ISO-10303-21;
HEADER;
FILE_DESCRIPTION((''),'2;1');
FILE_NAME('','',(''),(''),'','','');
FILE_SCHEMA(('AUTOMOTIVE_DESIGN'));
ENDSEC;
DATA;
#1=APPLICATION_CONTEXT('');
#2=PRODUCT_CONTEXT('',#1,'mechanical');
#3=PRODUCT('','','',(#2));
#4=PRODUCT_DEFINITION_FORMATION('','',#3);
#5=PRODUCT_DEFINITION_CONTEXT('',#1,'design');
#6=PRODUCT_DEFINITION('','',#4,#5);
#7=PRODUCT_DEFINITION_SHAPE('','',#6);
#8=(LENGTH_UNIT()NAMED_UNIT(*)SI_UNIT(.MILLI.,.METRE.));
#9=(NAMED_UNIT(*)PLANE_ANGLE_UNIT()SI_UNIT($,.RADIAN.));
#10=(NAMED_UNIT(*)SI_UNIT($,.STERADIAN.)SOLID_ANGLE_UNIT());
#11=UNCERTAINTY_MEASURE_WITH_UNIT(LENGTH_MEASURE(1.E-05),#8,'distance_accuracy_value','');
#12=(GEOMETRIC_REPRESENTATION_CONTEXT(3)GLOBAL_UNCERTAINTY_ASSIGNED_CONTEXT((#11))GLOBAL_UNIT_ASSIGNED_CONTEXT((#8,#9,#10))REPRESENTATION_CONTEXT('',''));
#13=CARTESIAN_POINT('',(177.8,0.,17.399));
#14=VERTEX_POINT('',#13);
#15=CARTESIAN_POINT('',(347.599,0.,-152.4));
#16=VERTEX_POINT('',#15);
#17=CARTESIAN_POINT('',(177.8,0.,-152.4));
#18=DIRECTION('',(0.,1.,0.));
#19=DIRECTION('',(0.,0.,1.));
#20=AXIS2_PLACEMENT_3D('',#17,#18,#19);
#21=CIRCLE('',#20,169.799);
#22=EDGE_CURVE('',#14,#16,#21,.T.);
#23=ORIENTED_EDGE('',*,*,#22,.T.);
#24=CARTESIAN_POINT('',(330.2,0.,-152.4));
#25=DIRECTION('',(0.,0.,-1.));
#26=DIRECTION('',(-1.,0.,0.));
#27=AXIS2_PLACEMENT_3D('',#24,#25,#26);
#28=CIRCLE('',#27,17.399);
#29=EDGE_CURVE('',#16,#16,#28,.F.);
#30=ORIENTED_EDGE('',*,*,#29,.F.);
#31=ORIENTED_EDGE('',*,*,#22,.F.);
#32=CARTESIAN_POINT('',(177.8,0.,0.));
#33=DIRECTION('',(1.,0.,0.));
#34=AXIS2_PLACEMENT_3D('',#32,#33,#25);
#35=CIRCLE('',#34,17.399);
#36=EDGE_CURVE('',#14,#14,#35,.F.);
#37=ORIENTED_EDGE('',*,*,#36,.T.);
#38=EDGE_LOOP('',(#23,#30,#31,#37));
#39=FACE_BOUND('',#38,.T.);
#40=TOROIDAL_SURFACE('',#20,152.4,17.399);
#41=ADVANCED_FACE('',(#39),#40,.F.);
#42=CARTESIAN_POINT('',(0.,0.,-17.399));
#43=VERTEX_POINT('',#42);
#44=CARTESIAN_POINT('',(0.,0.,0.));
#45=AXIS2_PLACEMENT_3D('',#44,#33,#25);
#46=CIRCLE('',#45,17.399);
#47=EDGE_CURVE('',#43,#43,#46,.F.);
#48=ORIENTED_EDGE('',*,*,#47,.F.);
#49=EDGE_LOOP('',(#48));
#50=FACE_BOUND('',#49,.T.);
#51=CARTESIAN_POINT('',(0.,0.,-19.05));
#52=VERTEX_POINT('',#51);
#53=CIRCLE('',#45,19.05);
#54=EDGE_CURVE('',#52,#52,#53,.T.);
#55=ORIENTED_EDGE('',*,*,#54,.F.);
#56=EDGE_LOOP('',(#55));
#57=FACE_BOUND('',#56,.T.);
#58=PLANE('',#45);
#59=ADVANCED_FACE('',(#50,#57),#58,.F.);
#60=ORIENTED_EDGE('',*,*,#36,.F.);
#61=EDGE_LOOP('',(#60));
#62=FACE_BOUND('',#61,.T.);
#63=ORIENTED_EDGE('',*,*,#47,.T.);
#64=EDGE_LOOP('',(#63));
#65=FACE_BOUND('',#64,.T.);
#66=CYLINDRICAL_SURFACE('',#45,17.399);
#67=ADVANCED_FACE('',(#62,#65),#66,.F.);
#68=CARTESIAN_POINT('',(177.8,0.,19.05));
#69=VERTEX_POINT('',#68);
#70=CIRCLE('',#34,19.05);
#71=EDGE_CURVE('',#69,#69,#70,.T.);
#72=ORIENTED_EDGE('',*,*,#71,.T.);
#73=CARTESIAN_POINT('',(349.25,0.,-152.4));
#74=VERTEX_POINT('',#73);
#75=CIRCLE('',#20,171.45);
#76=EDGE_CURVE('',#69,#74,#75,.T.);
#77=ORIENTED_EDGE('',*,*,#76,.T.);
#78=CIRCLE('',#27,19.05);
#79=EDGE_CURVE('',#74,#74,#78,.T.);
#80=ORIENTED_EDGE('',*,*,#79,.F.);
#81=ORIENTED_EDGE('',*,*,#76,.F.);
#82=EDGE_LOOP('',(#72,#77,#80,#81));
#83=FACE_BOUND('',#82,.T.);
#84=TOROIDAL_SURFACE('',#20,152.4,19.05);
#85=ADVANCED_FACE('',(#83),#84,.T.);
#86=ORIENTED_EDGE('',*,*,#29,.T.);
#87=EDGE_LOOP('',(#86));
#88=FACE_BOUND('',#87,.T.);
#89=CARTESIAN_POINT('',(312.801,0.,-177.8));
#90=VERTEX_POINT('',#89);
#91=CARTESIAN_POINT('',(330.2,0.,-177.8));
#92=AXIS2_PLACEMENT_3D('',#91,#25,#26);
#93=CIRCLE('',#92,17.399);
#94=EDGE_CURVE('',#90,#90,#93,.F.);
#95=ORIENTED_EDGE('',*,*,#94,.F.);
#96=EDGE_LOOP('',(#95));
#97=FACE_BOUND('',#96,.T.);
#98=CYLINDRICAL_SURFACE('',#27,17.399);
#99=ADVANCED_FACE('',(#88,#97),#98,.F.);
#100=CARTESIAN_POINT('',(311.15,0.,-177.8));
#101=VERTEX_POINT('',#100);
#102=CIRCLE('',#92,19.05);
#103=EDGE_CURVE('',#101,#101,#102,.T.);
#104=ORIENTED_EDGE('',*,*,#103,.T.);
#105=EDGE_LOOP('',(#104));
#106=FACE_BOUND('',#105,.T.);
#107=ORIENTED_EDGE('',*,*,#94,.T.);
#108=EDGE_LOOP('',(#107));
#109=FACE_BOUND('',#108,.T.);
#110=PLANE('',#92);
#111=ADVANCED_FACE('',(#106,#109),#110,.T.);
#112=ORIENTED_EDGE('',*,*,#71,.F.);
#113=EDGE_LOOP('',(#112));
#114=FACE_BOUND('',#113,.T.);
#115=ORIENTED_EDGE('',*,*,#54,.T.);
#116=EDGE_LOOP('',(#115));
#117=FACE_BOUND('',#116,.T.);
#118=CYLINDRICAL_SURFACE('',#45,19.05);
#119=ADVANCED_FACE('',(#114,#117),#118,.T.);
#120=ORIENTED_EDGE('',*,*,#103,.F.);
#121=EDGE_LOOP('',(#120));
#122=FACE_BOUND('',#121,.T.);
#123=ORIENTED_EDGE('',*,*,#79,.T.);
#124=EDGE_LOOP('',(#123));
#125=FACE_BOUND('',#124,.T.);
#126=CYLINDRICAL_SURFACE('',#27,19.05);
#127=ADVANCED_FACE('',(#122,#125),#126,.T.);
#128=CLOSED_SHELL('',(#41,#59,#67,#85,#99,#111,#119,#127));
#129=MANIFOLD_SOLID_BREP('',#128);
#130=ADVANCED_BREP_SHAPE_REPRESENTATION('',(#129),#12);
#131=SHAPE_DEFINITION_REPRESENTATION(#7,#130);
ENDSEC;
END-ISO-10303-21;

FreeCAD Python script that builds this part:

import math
import FreeCAD as App
import Part
import Sketcher
from FreeCAD import Vector
Q = App.Units.Quantity

doc = App.newDocument("Part")
params = doc.addObject("Spreadsheet::Sheet", "Params")
for row, (alias, value) in enumerate([
    ("sketch1_diameter", "1.5 in"),
    ("sketch1_diameter2", "1.37 in"),
    ("sketch2_radius", "6 in"),
    ("sketch2_width", "7 in"),
    ("sketch2_height", "1 in"),
], start=1):
    params.set(f"A{row}", alias)
    params.set(f"B{row}", "=" + value)
    params.setAlias(f"B{row}", alias)

body = doc.addObject("PartDesign::Body", "Body")

# Sketch on YZ plane
sketch1 = body.newObject("Sketcher::SketchObject", "Sketch")
sketch1.AttachmentSupport = (doc.getObject("YZ_Plane"), [""])
sketch1.MapMode = "FlatFace"
sketch1.addGeometry([
    Part.Circle(Vector(0, 0, 0), Vector(0, 0, 1), 19),
    Part.Circle(Vector(0, 0, 0), Vector(0, 0, 1), 17),
], False)
sketch1.addConstraint([
    Sketcher.Constraint("Coincident", 0, 3, -1, 1),
    Sketcher.Constraint("Coincident", 1, 3, -1, 1),
    Sketcher.Constraint("Diameter", 0, Q("1.5 in")),
    Sketcher.Constraint("Diameter", 1, Q("1.37 in")),
])
sketch1.setExpression("Constraints[2]", "Params.sketch1_diameter")
sketch1.setExpression("Constraints[3]", "Params.sketch1_diameter2")

# Sketch on XZ plane
sketch2 = body.newObject("Sketcher::SketchObject", "Sketch001")
sketch2.AttachmentSupport = (doc.getObject("XZ_Plane"), [""])
sketch2.MapMode = "FlatFace"
sketch2.addGeometry([
    Part.LineSegment(Vector(0, 0, 0), Vector(178, 0, 0)),
    Part.ArcOfCircle(Part.Circle(Vector(178, -152, 0), Vector(0, 0, 1), 152), math.radians(0), math.radians(90)),
    Part.LineSegment(Vector(330, -152, 0), Vector(330, -178, 0)),
], False)
sketch2.addConstraint([
    Sketcher.Constraint("Tangent", 0, 2, 1, 2),
    Sketcher.Constraint("Tangent", 1, 1, 2, 1),
    Sketcher.Constraint("Horizontal", 0),
    Sketcher.Constraint("Vertical", 2),
    Sketcher.Constraint("Coincident", 0, 1, -1, 1),
    Sketcher.Constraint("Radius", 1, Q("6 in")),
    Sketcher.Constraint("DistanceX", 0, 1, 0, 2, Q("7 in")),
    Sketcher.Constraint("DistanceY", 2, 2, 2, 1, Q("1 in")),
])
sketch2.setExpression("Constraints[5]", "Params.sketch2_radius")
sketch2.setExpression("Constraints[6]", "Params.sketch2_width")
sketch2.setExpression("Constraints[7]", "Params.sketch2_height")
doc.recompute()

additivepipe = body.newObject("PartDesign::AdditivePipe", "AdditivePipe")
additivepipe.Profile = sketch1
additivepipe.Spine = (sketch2, ["Edge1", "Edge2", "Edge3"])

doc.recompute()
